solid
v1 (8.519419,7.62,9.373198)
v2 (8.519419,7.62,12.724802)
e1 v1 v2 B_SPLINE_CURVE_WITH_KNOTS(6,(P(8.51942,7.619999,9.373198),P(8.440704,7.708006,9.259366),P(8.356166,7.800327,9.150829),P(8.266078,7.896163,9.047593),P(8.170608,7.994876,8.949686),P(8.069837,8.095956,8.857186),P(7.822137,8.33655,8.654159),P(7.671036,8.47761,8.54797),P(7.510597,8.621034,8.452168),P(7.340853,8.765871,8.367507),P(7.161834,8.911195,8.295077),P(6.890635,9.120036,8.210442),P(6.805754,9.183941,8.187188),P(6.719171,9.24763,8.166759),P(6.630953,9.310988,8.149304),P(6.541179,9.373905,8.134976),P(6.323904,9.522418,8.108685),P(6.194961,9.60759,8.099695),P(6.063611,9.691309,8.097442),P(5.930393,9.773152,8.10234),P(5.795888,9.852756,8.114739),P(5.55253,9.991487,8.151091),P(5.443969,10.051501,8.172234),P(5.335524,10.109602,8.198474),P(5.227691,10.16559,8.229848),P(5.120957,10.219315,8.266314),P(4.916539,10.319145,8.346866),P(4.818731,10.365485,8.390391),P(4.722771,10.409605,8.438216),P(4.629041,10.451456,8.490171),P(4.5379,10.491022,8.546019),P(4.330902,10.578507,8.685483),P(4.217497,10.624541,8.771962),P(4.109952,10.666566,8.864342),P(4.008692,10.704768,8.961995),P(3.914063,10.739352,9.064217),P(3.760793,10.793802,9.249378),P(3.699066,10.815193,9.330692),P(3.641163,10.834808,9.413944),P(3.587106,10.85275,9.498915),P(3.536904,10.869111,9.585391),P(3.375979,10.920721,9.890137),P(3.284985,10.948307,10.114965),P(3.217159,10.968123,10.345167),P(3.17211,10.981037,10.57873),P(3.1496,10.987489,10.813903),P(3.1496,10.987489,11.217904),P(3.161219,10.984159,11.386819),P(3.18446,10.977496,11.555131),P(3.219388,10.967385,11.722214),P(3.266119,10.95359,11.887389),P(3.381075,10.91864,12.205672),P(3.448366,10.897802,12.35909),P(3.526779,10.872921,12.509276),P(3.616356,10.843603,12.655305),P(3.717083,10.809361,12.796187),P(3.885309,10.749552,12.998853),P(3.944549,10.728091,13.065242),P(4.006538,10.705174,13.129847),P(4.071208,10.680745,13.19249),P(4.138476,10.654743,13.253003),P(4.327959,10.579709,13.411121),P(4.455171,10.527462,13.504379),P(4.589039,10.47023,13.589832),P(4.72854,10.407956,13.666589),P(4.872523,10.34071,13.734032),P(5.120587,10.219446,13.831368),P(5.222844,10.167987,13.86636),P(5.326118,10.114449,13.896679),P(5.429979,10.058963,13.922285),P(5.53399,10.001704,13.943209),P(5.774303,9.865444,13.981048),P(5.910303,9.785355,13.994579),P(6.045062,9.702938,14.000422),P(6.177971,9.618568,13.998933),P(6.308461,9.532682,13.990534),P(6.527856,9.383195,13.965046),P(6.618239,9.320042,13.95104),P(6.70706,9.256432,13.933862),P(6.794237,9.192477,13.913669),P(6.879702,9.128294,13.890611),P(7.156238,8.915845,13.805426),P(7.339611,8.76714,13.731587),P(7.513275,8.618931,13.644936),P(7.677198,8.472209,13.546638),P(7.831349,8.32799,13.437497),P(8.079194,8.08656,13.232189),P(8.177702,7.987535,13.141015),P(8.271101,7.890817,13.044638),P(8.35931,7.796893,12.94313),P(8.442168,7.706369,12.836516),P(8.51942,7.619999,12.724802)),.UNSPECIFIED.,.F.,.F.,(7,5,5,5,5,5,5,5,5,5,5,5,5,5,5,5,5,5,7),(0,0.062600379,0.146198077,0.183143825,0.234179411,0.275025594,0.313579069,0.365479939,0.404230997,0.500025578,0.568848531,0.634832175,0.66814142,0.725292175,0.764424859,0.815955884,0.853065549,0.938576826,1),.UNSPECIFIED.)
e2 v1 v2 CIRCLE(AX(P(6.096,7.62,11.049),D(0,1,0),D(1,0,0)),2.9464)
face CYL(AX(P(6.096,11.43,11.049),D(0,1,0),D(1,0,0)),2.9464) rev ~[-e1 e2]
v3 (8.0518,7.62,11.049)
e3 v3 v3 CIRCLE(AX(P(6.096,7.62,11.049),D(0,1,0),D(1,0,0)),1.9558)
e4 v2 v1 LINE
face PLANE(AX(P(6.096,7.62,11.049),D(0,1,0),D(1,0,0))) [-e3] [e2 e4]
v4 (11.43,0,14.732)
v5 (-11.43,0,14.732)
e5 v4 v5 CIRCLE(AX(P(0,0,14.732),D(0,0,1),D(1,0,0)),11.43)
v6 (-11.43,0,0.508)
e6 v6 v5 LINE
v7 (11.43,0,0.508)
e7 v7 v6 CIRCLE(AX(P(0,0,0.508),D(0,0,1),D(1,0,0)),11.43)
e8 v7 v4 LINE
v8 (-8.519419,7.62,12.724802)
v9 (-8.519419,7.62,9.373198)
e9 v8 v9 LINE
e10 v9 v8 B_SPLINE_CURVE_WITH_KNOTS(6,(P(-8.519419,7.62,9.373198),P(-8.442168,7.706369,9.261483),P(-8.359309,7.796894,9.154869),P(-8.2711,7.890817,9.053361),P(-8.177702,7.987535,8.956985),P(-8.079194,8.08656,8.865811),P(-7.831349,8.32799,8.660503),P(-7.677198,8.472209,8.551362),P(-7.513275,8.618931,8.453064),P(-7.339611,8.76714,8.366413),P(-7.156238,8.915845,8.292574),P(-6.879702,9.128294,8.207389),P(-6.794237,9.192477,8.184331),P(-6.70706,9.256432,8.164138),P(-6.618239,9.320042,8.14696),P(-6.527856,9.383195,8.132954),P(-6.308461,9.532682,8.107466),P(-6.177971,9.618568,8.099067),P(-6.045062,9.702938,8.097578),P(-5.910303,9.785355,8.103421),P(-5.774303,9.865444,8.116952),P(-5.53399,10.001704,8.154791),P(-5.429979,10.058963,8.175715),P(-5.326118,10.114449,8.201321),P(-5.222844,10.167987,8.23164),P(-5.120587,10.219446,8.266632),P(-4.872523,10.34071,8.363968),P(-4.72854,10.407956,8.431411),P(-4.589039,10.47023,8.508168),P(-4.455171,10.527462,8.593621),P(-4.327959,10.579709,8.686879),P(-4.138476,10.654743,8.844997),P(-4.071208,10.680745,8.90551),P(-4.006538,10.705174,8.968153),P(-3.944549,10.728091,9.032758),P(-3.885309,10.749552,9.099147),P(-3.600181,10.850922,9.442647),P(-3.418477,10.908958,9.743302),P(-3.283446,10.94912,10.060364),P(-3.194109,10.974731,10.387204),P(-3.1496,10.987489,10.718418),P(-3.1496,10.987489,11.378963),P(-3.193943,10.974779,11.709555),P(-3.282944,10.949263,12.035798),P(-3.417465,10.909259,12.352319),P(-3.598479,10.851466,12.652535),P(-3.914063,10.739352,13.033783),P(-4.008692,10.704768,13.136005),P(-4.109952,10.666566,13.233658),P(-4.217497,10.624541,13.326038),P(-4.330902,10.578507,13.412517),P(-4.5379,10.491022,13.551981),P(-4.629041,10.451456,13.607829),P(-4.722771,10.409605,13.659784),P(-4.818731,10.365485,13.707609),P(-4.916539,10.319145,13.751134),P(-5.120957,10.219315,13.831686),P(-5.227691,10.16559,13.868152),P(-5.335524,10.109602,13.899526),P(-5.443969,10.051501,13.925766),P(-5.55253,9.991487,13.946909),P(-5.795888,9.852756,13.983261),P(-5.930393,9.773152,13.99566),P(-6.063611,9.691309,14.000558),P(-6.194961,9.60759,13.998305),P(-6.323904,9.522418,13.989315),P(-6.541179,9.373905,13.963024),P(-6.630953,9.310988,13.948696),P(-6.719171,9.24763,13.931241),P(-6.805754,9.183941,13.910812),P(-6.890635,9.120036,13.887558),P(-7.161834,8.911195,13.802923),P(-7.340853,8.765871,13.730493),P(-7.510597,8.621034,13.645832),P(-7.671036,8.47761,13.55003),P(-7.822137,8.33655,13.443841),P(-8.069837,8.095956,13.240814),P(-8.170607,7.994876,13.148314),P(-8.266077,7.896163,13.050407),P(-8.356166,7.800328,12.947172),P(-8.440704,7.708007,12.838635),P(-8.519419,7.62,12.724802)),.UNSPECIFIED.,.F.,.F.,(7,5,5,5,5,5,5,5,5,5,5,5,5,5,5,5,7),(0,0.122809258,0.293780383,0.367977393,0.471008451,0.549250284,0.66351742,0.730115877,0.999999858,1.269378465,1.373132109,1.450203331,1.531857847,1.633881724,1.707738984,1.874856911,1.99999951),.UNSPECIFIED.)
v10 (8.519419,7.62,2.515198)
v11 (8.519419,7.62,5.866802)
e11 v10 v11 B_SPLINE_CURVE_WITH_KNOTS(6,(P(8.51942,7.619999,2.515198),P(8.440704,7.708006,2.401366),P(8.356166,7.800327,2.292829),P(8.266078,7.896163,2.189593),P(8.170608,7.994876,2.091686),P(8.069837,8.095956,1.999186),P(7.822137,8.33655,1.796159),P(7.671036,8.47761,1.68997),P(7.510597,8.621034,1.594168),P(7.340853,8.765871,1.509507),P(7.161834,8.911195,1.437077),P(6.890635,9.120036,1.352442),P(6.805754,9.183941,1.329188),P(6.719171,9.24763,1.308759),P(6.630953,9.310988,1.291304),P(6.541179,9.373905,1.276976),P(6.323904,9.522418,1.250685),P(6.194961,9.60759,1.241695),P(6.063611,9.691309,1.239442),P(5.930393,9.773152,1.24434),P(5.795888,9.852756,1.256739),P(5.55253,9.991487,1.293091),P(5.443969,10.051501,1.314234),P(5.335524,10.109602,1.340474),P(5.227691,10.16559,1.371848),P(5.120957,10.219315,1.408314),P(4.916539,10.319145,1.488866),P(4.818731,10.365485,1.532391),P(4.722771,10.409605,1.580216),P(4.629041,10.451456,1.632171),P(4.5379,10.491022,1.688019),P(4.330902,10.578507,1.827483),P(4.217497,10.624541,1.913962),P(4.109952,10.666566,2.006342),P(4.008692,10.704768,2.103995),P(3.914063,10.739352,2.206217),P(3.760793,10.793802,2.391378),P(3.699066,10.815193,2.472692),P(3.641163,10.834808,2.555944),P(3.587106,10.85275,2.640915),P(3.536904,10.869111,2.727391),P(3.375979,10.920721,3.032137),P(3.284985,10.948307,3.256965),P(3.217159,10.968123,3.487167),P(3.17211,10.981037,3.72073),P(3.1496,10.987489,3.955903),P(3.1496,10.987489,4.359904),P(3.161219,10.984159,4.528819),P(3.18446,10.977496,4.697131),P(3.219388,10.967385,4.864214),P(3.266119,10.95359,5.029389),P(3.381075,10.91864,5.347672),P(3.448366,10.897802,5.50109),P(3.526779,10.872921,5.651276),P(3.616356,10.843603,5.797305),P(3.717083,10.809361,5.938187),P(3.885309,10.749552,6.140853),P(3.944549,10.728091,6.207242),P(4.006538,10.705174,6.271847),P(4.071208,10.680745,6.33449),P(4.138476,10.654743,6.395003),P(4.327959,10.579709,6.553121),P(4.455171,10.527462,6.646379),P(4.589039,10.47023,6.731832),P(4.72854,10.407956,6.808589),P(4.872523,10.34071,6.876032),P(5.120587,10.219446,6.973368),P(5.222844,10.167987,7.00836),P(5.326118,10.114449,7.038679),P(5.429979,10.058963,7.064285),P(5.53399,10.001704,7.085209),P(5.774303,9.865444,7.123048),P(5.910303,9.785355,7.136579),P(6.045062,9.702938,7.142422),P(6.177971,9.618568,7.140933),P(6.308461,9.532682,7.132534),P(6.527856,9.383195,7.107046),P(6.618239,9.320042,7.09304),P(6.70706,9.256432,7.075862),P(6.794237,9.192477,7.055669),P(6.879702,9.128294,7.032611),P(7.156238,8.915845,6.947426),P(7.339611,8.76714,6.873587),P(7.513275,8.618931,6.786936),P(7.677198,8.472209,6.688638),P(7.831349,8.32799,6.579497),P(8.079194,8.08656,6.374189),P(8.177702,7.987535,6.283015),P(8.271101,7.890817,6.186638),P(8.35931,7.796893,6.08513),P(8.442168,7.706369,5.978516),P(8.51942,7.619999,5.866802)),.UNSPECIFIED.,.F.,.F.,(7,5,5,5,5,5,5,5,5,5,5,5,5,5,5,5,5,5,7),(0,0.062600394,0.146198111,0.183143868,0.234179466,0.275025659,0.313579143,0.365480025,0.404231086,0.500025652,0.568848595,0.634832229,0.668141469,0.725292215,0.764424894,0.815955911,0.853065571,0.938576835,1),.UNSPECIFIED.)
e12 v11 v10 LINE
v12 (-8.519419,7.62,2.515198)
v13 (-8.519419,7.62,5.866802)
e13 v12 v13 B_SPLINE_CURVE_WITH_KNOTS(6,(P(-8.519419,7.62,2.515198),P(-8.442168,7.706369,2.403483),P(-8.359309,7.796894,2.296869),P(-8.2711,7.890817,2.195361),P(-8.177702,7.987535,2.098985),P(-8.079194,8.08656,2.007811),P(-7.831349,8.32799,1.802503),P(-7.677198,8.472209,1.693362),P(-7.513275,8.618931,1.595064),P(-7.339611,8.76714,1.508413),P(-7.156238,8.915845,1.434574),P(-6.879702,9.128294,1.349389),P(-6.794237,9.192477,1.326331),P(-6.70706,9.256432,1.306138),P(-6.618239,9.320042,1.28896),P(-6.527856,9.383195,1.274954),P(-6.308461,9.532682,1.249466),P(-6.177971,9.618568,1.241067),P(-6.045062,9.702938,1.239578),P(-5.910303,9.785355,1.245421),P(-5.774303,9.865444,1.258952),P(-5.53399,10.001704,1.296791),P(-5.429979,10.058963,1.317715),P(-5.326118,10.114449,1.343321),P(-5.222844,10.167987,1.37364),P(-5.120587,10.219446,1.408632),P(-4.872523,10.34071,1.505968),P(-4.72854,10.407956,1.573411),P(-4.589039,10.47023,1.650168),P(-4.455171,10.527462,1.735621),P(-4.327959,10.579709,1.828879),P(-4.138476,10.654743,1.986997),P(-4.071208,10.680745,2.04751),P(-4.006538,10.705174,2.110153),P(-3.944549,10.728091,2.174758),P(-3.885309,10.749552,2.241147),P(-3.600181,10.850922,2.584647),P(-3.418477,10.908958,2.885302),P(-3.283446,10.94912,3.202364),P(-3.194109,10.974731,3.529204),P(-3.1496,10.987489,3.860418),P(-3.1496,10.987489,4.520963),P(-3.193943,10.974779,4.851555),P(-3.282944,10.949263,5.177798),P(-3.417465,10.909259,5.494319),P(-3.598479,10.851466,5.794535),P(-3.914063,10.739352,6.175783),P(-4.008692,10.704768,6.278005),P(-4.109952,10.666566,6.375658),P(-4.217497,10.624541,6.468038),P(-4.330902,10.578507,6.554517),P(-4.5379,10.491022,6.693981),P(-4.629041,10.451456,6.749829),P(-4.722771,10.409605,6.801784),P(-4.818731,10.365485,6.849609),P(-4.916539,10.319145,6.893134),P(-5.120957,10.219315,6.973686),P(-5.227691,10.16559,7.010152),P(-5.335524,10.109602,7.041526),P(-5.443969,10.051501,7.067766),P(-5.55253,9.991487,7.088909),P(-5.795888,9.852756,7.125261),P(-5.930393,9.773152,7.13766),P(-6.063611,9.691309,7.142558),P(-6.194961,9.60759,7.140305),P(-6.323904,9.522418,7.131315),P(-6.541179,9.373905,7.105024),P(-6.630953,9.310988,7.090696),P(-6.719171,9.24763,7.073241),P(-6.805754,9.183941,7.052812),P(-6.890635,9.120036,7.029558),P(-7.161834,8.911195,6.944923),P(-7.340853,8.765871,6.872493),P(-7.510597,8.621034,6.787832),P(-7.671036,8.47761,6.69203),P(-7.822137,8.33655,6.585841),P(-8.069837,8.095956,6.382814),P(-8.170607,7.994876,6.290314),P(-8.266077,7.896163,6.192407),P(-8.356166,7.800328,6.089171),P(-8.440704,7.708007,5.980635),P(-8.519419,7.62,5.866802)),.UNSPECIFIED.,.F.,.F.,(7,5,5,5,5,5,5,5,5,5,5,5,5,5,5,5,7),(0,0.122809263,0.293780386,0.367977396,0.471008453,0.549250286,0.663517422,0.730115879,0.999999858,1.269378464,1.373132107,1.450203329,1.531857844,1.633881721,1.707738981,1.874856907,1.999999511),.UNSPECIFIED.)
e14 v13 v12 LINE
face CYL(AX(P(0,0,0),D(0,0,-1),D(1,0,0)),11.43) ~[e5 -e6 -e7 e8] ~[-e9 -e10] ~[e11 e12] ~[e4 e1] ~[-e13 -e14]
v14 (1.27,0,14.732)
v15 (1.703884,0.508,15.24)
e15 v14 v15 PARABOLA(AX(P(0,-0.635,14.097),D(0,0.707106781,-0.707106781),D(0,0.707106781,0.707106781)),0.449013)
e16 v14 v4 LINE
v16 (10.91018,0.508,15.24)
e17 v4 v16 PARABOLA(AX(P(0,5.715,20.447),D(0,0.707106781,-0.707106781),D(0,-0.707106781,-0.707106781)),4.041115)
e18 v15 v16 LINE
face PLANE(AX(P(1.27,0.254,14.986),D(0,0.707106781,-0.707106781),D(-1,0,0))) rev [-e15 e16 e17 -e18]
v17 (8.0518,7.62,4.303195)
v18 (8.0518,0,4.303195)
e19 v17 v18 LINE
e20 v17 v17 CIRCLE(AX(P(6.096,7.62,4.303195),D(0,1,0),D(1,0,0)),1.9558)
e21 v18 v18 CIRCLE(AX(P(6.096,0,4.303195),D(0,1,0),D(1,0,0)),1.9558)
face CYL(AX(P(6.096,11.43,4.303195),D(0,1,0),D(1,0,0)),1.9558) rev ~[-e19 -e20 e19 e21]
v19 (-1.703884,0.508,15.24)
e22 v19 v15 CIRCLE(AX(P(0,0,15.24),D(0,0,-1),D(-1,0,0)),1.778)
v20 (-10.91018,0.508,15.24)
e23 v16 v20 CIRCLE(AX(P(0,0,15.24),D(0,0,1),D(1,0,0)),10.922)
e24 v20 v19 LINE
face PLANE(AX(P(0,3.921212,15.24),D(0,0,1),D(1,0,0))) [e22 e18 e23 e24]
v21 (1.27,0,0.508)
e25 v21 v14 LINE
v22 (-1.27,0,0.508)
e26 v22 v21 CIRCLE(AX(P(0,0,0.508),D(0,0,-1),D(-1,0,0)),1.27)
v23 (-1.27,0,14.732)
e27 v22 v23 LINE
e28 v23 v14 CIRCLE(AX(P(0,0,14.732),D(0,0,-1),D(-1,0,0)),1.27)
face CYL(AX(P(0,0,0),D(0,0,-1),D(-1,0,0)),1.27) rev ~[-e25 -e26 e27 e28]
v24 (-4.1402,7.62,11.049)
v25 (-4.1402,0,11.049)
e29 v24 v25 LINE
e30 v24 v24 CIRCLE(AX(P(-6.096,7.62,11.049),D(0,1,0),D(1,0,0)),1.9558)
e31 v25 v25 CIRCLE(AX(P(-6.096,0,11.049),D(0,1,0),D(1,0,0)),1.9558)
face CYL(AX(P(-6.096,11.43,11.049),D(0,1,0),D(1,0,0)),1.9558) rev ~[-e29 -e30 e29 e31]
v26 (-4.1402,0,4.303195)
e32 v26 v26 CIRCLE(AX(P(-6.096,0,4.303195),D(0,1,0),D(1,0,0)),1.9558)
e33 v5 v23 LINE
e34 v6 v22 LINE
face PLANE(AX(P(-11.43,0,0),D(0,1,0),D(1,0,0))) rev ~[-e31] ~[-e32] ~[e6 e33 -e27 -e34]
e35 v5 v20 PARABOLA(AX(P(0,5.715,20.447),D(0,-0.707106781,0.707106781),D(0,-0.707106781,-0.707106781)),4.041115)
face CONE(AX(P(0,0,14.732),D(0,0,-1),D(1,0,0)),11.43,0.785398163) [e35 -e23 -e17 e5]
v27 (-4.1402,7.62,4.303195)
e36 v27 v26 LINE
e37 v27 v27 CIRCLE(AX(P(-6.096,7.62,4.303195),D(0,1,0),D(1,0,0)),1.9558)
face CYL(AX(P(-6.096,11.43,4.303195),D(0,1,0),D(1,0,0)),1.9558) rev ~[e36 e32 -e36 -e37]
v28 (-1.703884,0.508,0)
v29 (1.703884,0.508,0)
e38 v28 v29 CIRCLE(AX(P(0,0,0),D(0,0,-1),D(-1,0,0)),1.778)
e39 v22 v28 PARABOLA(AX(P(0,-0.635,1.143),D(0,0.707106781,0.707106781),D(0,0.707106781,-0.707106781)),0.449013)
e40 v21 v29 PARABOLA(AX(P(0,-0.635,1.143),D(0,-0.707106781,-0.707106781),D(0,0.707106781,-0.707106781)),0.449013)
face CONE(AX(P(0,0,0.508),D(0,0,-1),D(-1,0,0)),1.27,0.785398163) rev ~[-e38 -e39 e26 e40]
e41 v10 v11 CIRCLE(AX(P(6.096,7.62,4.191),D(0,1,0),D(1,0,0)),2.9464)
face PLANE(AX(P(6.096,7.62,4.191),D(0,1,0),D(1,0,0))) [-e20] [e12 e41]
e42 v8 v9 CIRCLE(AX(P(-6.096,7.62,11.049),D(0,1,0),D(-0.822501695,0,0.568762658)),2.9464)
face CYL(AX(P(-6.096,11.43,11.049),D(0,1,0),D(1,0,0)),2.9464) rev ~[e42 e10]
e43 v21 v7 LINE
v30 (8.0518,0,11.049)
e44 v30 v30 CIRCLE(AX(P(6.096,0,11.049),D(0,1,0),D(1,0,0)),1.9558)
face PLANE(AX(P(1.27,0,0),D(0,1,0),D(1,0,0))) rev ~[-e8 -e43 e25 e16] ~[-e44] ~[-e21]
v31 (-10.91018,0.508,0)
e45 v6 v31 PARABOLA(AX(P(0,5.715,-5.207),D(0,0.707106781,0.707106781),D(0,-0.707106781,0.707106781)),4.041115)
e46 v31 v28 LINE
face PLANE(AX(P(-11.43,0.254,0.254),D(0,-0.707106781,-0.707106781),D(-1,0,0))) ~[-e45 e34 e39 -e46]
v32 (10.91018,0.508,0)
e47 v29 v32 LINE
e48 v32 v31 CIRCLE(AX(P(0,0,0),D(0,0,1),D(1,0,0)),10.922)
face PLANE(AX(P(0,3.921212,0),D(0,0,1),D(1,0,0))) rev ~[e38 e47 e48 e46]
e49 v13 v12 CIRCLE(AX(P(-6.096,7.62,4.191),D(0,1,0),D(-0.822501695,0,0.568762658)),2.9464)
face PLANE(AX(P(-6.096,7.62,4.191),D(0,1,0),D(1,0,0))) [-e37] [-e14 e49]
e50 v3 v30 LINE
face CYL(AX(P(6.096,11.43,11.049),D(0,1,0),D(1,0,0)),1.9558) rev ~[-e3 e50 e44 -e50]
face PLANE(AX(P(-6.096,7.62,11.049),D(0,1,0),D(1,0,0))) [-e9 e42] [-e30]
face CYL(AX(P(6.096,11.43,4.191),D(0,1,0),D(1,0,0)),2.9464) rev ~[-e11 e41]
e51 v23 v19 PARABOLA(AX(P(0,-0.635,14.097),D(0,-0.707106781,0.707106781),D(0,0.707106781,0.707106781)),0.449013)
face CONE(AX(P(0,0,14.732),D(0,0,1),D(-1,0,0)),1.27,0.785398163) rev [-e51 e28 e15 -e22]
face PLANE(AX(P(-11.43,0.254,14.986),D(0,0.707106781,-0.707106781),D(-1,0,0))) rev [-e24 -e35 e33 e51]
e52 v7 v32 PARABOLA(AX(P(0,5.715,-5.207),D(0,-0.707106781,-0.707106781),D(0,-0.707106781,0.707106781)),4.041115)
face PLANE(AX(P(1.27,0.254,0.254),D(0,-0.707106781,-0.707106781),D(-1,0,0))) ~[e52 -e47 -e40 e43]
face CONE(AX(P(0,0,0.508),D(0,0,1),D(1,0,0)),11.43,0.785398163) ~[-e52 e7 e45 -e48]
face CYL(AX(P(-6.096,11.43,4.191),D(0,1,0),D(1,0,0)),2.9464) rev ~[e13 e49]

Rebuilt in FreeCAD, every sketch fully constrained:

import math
import FreeCAD as App
import Part
import Sketcher
Q = App.Units.Quantity


def edges_at(feature, points):
    """Names of the edges that pass closest to the given points."""
    edges = feature.Shape.Edges
    near = lambda p: min(range(len(edges)), key=lambda i: edges[i].distToShape(Part.Vertex(*p))[0])
    return sorted({f"Edge{near(p) + 1}" for p in points})

doc = App.newDocument("Part")
body = doc.addObject("PartDesign::Body", "Body")

sketch1 = doc.addObject("Sketcher::SketchObject", "Sketch")
body.addObject(sketch1)
sketch1.AttachmentSupport = (doc.XY_Plane, [""])
sketch1.MapMode = "FlatFace"
sketch1.addGeometry([
    Part.LineSegment(App.Vector(-11.4, 0, 0), App.Vector(-1.3, 0, 0)),
    Part.ArcOfCircle(Part.Circle(App.Vector(0, 0, 0), App.Vector(0, 0, 1), 1.3), math.radians(0), math.radians(180)),
    Part.LineSegment(App.Vector(1.3, 0, 0), App.Vector(11.4, 0, 0)),
    Part.ArcOfCircle(Part.Circle(App.Vector(0, 0, 0), App.Vector(0, 0, 1), 11.4), math.radians(0), math.radians(180)),
], False)
sketch1.addConstraint([
    Sketcher.Constraint("Coincident", 0, 2, 1, 2),
    Sketcher.Constraint("Coincident", 1, 1, 2, 1),
    Sketcher.Constraint("Coincident", 2, 2, 3, 1),
    Sketcher.Constraint("Coincident", 3, 2, 0, 1),
    Sketcher.Constraint("Horizontal", 0),
    Sketcher.Constraint("Horizontal", 2),
    Sketcher.Constraint("Coincident", 1, 3, -1, 1),
    Sketcher.Constraint("Coincident", 3, 3, -1, 1),
    Sketcher.Constraint("PointOnObject", 0, 2, -1),
    Sketcher.Constraint("PointOnObject", 1, 1, -1),
    Sketcher.Constraint("Radius", 1, Q("0.05 in")),
    Sketcher.Constraint("Radius", 3, Q("0.45 in")),
])
pad1 = doc.addObject("PartDesign::Pad", "Pad")
body.addObject(pad1)
pad1.Profile = sketch1
pad1.Length = Q("0.6 in")
doc.recompute()

chamfer = doc.addObject("PartDesign::Chamfer", "Chamfer")
body.addObject(chamfer)
chamfer.Base = (pad1, edges_at(pad1, [
    (0, 11.43, 15.24),
    (-6.35, 0, 15.24),
    (0, 1.27, 15.24),
    (-6.35, 0, 0),
    (0, 11.43, 0),
    (6.35, 0, 0),
    (0, 1.27, 0),
    (6.35, 0, 15.24),
]))
chamfer.Size = Q("0.02 in")

sketch2 = doc.addObject("Sketcher::SketchObject", "Sketch001")
body.addObject(sketch2)
sketch2.AttachmentSupport = (doc.XZ_Plane, [""])
sketch2.MapMode = "FlatFace"
sketch2.AttachmentOffset = App.Placement(App.Vector(0, 0, -0.45 * 25.4), App.Rotation())
sketch2.addGeometry([
    Part.Circle(App.Vector(-6.1, 4.2, 0), App.Vector(0, 0, 1), 2.9),
    Part.Circle(App.Vector(-6.1, 4.3, 0), App.Vector(0, 0, 1), 2),
    Part.Circle(App.Vector(-6.1, 11, 0), App.Vector(0, 0, 1), 2.9),
    Part.Circle(App.Vector(-6.1, 11, 0), App.Vector(0, 0, 1), 2),
    Part.Circle(App.Vector(6.1, 4.2, 0), App.Vector(0, 0, 1), 2.9),
    Part.Circle(App.Vector(6.1, 4.3, 0), App.Vector(0, 0, 1), 2),
    Part.Circle(App.Vector(6.1, 11, 0), App.Vector(0, 0, 1), 2.9),
    Part.Circle(App.Vector(6.1, 11, 0), App.Vector(0, 0, 1), 2),
], False)
sketch2.addConstraint([
    Sketcher.Constraint("Coincident", 3, 3, 2, 3),
    Sketcher.Constraint("Coincident", 7, 3, 6, 3),
    Sketcher.Constraint("Equal", 0, 2),
    Sketcher.Constraint("Equal", 1, 3),
    Sketcher.Constraint("Equal", 2, 4),
    Sketcher.Constraint("Equal", 3, 5),
    Sketcher.Constraint("Equal", 4, 6),
    Sketcher.Constraint("Equal", 5, 7),
    Sketcher.Constraint("Symmetric", 0, 3, 4, 3, -2),
    Sketcher.Constraint("Symmetric", 1, 3, 5, 3, -2),
    Sketcher.Constraint("Symmetric", 2, 3, 6, 3, -2),
    Sketcher.Constraint("Vertical", 0, 3, 1, 3),
    Sketcher.Constraint("Vertical", 1, 3, 2, 3),
    Sketcher.Constraint("Diameter", 0, Q("0.232 in")),
    Sketcher.Constraint("Diameter", 1, Q("0.154 in")),
    Sketcher.Constraint("DistanceX", 0, 3, -1, 1, Q("0.24 in")),
    Sketcher.Constraint("DistanceY", 0, 3, 2, 3, Q("0.27 in")),
    Sketcher.Constraint("DistanceY", -1, 1, 0, 3, Q("0.165 in")),
    Sketcher.Constraint("DistanceY", -1, 1, 1, 3, Q("4.303195 mm")),
])
pocket1 = doc.addObject("PartDesign::Pocket", "Pocket")
body.addObject(pocket1)
pocket1.Profile = sketch2
pocket1.Length = Q("0.15 in")
pocket1.Reversed = True

sketch3 = doc.addObject("Sketcher::SketchObject", "Sketch002")
body.addObject(sketch3)
sketch3.AttachmentSupport = (doc.XZ_Plane, [""])
sketch3.MapMode = "FlatFace"
sketch3.AttachmentOffset = App.Placement(App.Vector(0, 0, -0.45 * 25.4), App.Rotation())
sketch3.addGeometry([
    Part.Circle(App.Vector(-6.1, 4.3, 0), App.Vector(0, 0, 1), 2),
    Part.Circle(App.Vector(-6.1, 11, 0), App.Vector(0, 0, 1), 2),
    Part.Circle(App.Vector(6.1, 11, 0), App.Vector(0, 0, 1), 2),
    Part.Circle(App.Vector(6.1, 4.3, 0), App.Vector(0, 0, 1), 2),
], False)
sketch3.addConstraint([
    Sketcher.Constraint("Equal", 0, 1),
    Sketcher.Constraint("Equal", 1, 2),
    Sketcher.Constraint("Equal", 2, 3),
    Sketcher.Constraint("Symmetric", 1, 3, 2, 3, -2),
    Sketcher.Constraint("Symmetric", 0, 3, 3, 3, -2),
    Sketcher.Constraint("Vertical", 0, 3, 1, 3),
    Sketcher.Constraint("Diameter", 0, Q("0.154 in")),
    Sketcher.Constraint("DistanceX", 0, 3, -1, 1, Q("0.24 in")),
    Sketcher.Constraint("DistanceY", -1, 1, 1, 3, Q("0.435 in")),
    Sketcher.Constraint("DistanceY", -1, 1, 0, 3, Q("4.303195 mm")),
])
pocket2 = doc.addObject("PartDesign::Pocket", "Pocket001")
body.addObject(pocket2)
pocket2.Profile = sketch3
pocket2.Type = "ThroughAll"
pocket2.Reversed = True

doc.recompute()
